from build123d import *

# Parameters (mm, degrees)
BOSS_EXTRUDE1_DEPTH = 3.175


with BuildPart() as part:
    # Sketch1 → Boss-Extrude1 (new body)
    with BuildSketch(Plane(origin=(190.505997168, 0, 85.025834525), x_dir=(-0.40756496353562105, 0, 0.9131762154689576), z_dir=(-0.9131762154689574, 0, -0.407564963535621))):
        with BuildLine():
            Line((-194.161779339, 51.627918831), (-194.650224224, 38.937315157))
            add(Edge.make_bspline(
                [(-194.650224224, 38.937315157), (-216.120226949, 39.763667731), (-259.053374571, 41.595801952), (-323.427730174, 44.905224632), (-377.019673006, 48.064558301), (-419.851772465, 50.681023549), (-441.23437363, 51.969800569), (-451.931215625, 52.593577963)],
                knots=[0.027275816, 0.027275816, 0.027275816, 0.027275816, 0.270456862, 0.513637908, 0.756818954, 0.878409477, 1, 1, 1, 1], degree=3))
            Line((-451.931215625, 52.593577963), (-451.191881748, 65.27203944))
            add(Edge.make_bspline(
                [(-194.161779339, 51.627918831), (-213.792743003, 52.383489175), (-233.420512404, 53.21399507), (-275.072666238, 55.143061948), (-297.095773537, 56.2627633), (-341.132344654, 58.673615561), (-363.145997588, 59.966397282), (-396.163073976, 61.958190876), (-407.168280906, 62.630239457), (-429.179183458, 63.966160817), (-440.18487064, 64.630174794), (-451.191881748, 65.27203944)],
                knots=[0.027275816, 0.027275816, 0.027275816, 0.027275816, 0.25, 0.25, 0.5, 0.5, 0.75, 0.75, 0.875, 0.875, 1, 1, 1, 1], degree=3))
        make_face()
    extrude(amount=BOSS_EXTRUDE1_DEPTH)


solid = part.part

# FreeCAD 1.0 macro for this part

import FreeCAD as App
import Part
import Sketcher
Q = App.Units.Quantity

doc = App.newDocument("Part")
body = doc.addObject("PartDesign::Body", "Body")

sketch1 = doc.addObject("Sketcher::SketchObject", "Sketch")
body.addObject(sketch1)
sketch1.Placement = App.Placement(App.Vector(190.505997, 0, 85.025835), App.Rotation(App.Vector(-0.407564964, 0, 0.913176215), App.Vector(0, 1, 0), App.Vector(-0.913176215, 0, -0.407564964), "ZXY"))
sketch1.addGeometry(Part.LineSegment(App.Vector(-194.650224, 38.937315, 0), App.Vector(-194.161779, 51.627919, 0)), False)
sketch1.addGeometry(Part.BSplineCurve([App.Vector(-194.161779, 51.627919, 0), App.Vector(-213.792743, 52.383489, 0), App.Vector(-233.420512, 53.213995, 0), App.Vector(-275.072666, 55.143062, 0), App.Vector(-297.095773, 56.262763, 0), App.Vector(-341.132344, 58.673616, 0), App.Vector(-363.145997, 59.966397, 0), App.Vector(-396.163074, 61.958191, 0), App.Vector(-407.168281, 62.630239, 0), App.Vector(-429.179183, 63.966161, 0), App.Vector(-440.18487, 64.630175, 0), App.Vector(-451.191882, 65.272039, 0)], [4, 2, 2, 2, 2, 4], [0.027275816, 0.25, 0.5, 0.75, 0.875, 1], False, 3, [1, 1, 1, 1, 1, 1, 1, 1, 1, 1, 1, 1], False), False)
sketch1.addGeometry(Part.LineSegment(App.Vector(-451.191882, 65.272039, 0), App.Vector(-451.931215, 52.593578, 0)), False)
sketch1.addGeometry(Part.BSplineCurve([App.Vector(-194.650224, 38.937315, 0), App.Vector(-216.120227, 39.763668, 0), App.Vector(-259.053374, 41.595802, 0), App.Vector(-323.42773, 44.905225, 0), App.Vector(-377.019673, 48.064558, 0), App.Vector(-419.851772, 50.681024, 0), App.Vector(-441.234373, 51.969801, 0), App.Vector(-451.931215, 52.593578, 0)], [4, 1, 1, 1, 1, 4], [0.027275816, 0.270456862, 0.513637908, 0.756818954, 0.878409477, 1], False, 3, [1, 1, 1, 1, 1, 1, 1, 1], False), False)
sketch1.addConstraint(Sketcher.Constraint("Block", 1))
sketch1.addConstraint(Sketcher.Constraint("Block", 3))
sketch1.addConstraint(Sketcher.Constraint("Coincident", 0, 2, 1, 1))
sketch1.addConstraint(Sketcher.Constraint("Coincident", 1, 2, 2, 1))
sketch1.addConstraint(Sketcher.Constraint("Coincident", 2, 2, 3, 2))
sketch1.addConstraint(Sketcher.Constraint("Coincident", 3, 1, 0, 1))
pad1 = doc.addObject("PartDesign::Pad", "Pad")
body.addObject(pad1)
pad1.Profile = sketch1
pad1.Length = Q("0.125 in")

doc.recompute()
